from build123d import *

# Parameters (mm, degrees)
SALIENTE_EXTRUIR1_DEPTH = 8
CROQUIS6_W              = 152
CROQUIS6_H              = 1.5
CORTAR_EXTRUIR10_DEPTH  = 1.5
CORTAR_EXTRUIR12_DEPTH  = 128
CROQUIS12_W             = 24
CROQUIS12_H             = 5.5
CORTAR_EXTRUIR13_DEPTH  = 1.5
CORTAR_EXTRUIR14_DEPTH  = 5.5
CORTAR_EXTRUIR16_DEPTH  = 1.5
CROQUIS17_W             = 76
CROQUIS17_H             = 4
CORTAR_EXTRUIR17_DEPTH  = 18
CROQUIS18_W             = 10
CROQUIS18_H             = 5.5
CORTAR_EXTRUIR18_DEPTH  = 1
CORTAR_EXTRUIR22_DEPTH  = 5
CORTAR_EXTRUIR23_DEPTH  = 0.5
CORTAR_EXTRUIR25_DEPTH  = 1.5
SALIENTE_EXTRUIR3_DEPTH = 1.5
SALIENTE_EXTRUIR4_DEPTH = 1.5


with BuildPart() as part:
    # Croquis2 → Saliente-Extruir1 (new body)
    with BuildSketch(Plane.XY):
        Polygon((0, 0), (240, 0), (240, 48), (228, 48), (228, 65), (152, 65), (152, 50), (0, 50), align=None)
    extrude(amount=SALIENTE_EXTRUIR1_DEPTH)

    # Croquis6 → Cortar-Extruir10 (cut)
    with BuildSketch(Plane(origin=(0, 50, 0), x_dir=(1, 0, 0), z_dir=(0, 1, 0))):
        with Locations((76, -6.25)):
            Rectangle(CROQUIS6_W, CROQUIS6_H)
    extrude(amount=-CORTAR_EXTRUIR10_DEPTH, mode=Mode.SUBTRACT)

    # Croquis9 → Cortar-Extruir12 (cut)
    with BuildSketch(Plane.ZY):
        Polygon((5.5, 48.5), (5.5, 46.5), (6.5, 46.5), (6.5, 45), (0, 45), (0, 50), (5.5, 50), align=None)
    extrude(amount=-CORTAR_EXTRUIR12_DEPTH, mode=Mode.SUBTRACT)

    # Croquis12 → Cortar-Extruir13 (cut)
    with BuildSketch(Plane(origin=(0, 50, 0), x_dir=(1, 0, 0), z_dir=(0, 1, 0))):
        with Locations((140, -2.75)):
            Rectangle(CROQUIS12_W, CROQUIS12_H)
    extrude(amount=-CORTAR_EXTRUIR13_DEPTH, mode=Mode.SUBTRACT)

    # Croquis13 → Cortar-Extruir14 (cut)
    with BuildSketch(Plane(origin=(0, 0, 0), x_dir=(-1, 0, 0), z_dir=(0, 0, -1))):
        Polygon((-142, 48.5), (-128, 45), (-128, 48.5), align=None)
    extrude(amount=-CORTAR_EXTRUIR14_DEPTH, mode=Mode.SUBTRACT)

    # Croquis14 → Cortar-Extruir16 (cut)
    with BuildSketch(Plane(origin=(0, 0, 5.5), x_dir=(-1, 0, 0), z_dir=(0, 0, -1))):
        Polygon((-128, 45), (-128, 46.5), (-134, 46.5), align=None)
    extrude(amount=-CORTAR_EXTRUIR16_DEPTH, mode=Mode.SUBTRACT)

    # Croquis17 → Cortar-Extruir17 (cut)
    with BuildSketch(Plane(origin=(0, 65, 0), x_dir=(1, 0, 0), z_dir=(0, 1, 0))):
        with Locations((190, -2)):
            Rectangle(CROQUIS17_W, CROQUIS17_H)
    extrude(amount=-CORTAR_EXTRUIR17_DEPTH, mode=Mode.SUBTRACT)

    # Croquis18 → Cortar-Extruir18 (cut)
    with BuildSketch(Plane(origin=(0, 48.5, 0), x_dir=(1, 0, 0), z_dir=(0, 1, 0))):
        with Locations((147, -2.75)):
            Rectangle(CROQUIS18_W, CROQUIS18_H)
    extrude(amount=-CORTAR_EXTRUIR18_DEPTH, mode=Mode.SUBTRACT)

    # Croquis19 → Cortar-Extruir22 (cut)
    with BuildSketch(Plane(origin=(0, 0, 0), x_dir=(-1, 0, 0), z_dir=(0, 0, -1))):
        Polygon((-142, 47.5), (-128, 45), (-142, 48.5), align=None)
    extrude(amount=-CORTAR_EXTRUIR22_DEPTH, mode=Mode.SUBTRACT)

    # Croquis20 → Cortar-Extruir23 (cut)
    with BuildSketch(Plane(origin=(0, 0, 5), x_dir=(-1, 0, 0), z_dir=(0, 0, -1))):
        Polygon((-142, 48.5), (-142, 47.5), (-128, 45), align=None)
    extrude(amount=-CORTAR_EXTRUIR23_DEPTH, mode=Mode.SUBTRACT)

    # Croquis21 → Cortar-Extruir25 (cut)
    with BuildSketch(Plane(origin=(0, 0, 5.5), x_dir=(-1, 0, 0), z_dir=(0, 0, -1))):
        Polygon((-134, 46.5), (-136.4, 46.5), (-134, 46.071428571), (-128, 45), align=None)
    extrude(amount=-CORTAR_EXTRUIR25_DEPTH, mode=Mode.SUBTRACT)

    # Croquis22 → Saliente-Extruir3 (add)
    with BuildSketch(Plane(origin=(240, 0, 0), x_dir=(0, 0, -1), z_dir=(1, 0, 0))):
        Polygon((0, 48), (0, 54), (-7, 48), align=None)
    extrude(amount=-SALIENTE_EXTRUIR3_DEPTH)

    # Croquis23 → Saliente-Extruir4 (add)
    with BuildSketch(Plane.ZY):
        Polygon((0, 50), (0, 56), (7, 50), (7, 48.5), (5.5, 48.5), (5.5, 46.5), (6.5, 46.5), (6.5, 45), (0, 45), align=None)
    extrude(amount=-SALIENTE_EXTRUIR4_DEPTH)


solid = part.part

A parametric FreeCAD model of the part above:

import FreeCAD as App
import Part
import Sketcher

doc = App.newDocument("Part")
body = doc.addObject("PartDesign::Body", "Body")

# Sketch on XY plane
sketch1 = body.newObject("Sketcher::SketchObject", "Sketch")
sketch1.AttachmentSupport = (doc.getObject("XY_Plane"), [""])
sketch1.MapMode = "FlatFace"
sketch1.addGeometry([
    Part.LineSegment(App.Vector(0, 0, 0), App.Vector(240, 0, 0)),  # 0
    Part.LineSegment(App.Vector(240, 0, 0), App.Vector(240, 48, 0)),  # 1
    Part.LineSegment(App.Vector(240, 48, 0), App.Vector(228, 48, 0)),  # 2
    Part.LineSegment(App.Vector(228, 48, 0), App.Vector(228, 65, 0)),  # 3
    Part.LineSegment(App.Vector(228, 65, 0), App.Vector(152, 65, 0)),  # 4
    Part.LineSegment(App.Vector(152, 65, 0), App.Vector(152, 50, 0)),  # 5
    Part.LineSegment(App.Vector(152, 50, 0), App.Vector(0, 50, 0)),  # 6
    Part.LineSegment(App.Vector(0, 50, 0), App.Vector(0, 0, 0)),  # 7
], False)
sketch1.addConstraint([
    Sketcher.Constraint("Coincident", 0, 2, 1, 1),
    Sketcher.Constraint("Coincident", 1, 2, 2, 1),
    Sketcher.Constraint("Coincident", 2, 2, 3, 1),
    Sketcher.Constraint("Coincident", 3, 2, 4, 1),
    Sketcher.Constraint("Coincident", 4, 2, 5, 1),
    Sketcher.Constraint("Coincident", 5, 2, 6, 1),
    Sketcher.Constraint("Coincident", 6, 2, 7, 1),
    Sketcher.Constraint("Coincident", 7, 2, 0, 1),
    Sketcher.Constraint("Horizontal", 0),
    Sketcher.Constraint("Vertical", 1),
    Sketcher.Constraint("Horizontal", 2),
    Sketcher.Constraint("Vertical", 3),
    Sketcher.Constraint("Horizontal", 4),
    Sketcher.Constraint("Vertical", 5),
    Sketcher.Constraint("Horizontal", 6),
    Sketcher.Constraint("Vertical", 7),
    Sketcher.Constraint("Coincident", 7, 2, -1, 1),
    Sketcher.Constraint("DistanceX", 0, 1, 0, 2, 240.0),
    Sketcher.Constraint("DistanceX", 2, 2, 2, 1, 12.0),
    Sketcher.Constraint("DistanceX", 4, 2, 4, 1, 76.0),
    Sketcher.Constraint("DistanceY", 1, 1, 1, 2, 48.0),
    Sketcher.Constraint("DistanceY", 3, 1, 3, 2, 17.0),
    Sketcher.Constraint("DistanceY", 5, 2, 5, 1, 15.0),
])
pad1 = body.newObject("PartDesign::Pad", "Pad")
pad1.Profile = sketch1
pad1.Length = 8

# Sketch on XZ plane
sketch2 = body.newObject("Sketcher::SketchObject", "Sketch001")
sketch2.AttachmentSupport = (doc.getObject("XZ_Plane"), [""])
sketch2.MapMode = "FlatFace"
sketch2.AttachmentOffset = App.Placement(App.Vector(0, 0, -50), App.Rotation())
sketch2.addGeometry([
    Part.LineSegment(App.Vector(0, 5.5, 0), App.Vector(0, 7, 0)),
    Part.LineSegment(App.Vector(0, 7, 0), App.Vector(152, 7, 0)),
    Part.LineSegment(App.Vector(152, 7, 0), App.Vector(152, 5.5, 0)),
    Part.LineSegment(App.Vector(152, 5.5, 0), App.Vector(0, 5.5, 0)),
], False)
sketch2.addConstraint([
    Sketcher.Constraint("Coincident", 0, 2, 1, 1),
    Sketcher.Constraint("Coincident", 1, 2, 2, 1),
    Sketcher.Constraint("Coincident", 2, 2, 3, 1),
    Sketcher.Constraint("Coincident", 3, 2, 0, 1),
    Sketcher.Constraint("Vertical", 0),
    Sketcher.Constraint("Horizontal", 1),
    Sketcher.Constraint("Vertical", 2),
    Sketcher.Constraint("Horizontal", 3),
    Sketcher.Constraint("PointOnObject", 0, 2, -2),
    Sketcher.Constraint("DistanceX", 1, 1, 1, 2, 152.0),
    Sketcher.Constraint("DistanceY", 0, 1, 0, 2, 1.5),
    Sketcher.Constraint("DistanceY", -1, 1, 0, 2, 7.0),
])
pocket1 = body.newObject("PartDesign::Pocket", "Pocket")
pocket1.Profile = sketch2
pocket1.Length = 1.5
pocket1.Reversed = True

# Sketch on YZ plane
sketch3 = body.newObject("Sketcher::SketchObject", "Sketch002")
sketch3.AttachmentSupport = (doc.getObject("YZ_Plane"), [""])
sketch3.MapMode = "FlatFace"
sketch3.addGeometry([
    Part.LineSegment(App.Vector(46.5, 5.5, 0), App.Vector(50, 5.5, 0)),  # 0
    Part.LineSegment(App.Vector(50, 5.5, 0), App.Vector(50, 0, 0)),  # 1
    Part.LineSegment(App.Vector(50, 0, 0), App.Vector(45, 0, 0)),  # 2
    Part.LineSegment(App.Vector(45, 0, 0), App.Vector(45, 6.5, 0)),  # 3
    Part.LineSegment(App.Vector(45, 6.5, 0), App.Vector(46.5, 6.5, 0)),  # 4
    Part.LineSegment(App.Vector(46.5, 6.5, 0), App.Vector(46.5, 5.5, 0)),  # 5
], False)
sketch3.addConstraint([
    Sketcher.Constraint("Coincident", 0, 2, 1, 1),
    Sketcher.Constraint("Coincident", 1, 2, 2, 1),
    Sketcher.Constraint("Coincident", 2, 2, 3, 1),
    Sketcher.Constraint("Coincident", 3, 2, 4, 1),
    Sketcher.Constraint("Coincident", 4, 2, 5, 1),
    Sketcher.Constraint("Coincident", 5, 2, 0, 1),
    Sketcher.Constraint("Horizontal", 0),
    Sketcher.Constraint("Vertical", 1),
    Sketcher.Constraint("Horizontal", 2),
    Sketcher.Constraint("Vertical", 3),
    Sketcher.Constraint("Horizontal", 4),
    Sketcher.Constraint("Vertical", 5),
    Sketcher.Constraint("PointOnObject", 1, 2, -1),
    Sketcher.Constraint("DistanceX", 2, 2, 2, 1, 5.0),
    Sketcher.Constraint("DistanceY", 5, 2, 5, 1, 1.0),
    Sketcher.Constraint("DistanceX", 0, 1, 0, 2, 3.5),
    Sketcher.Constraint("DistanceY", 1, 2, 1, 1, 5.5),
    Sketcher.Constraint("DistanceX", -1, 1, 0, 2, 50.0),
])
pocket2 = body.newObject("PartDesign::Pocket", "Pocket001")
pocket2.Profile = sketch3
pocket2.Length = 128
pocket2.Reversed = True

# Sketch on XZ plane
sketch4 = body.newObject("Sketcher::SketchObject", "Sketch003")
sketch4.AttachmentSupport = (doc.getObject("XZ_Plane"), [""])
sketch4.MapMode = "FlatFace"
sketch4.AttachmentOffset = App.Placement(App.Vector(0, 0, -50), App.Rotation())
sketch4.addGeometry([
    Part.LineSegment(App.Vector(128, 0, 0), App.Vector(128, 6, 0)),
    Part.LineSegment(App.Vector(128, 6, 0), App.Vector(152, 6, 0)),
    Part.LineSegment(App.Vector(152, 6, 0), App.Vector(152, 0, 0)),
    Part.LineSegment(App.Vector(152, 0, 0), App.Vector(128, 0, 0)),
], False)
sketch4.addConstraint([
    Sketcher.Constraint("Coincident", 0, 2, 1, 1),
    Sketcher.Constraint("Coincident", 1, 2, 2, 1),
    Sketcher.Constraint("Coincident", 2, 2, 3, 1),
    Sketcher.Constraint("Coincident", 3, 2, 0, 1),
    Sketcher.Constraint("Vertical", 0),
    Sketcher.Constraint("Horizontal", 1),
    Sketcher.Constraint("Vertical", 2),
    Sketcher.Constraint("Horizontal", 3),
    Sketcher.Constraint("PointOnObject", 2, 2, -1),
    Sketcher.Constraint("DistanceX", 1, 1, 1, 2, 24.0),
    Sketcher.Constraint("DistanceY", 0, 1, 0, 2, 5.5),
    Sketcher.Constraint("DistanceX", -1, 1, 0, 2, 128.0),
])
pocket3 = body.newObject("PartDesign::Pocket", "Pocket002")
pocket3.Profile = sketch4
pocket3.Length = 1.5
pocket3.Reversed = True

# Sketch on XY plane
sketch5 = body.newObject("Sketcher::SketchObject", "Sketch004")
sketch5.AttachmentSupport = (doc.getObject("XY_Plane"), [""])
sketch5.MapMode = "FlatFace"
sketch5.addGeometry([
    Part.LineSegment(App.Vector(142, 48.5, 0), App.Vector(128, 45, 0)),
    Part.LineSegment(App.Vector(128, 45, 0), App.Vector(128, 48.5, 0)),
    Part.LineSegment(App.Vector(128, 48.5, 0), App.Vector(142, 48.5, 0)),
], False)
sketch5.addConstraint([
    Sketcher.Constraint("Coincident", 0, 2, 1, 1),
    Sketcher.Constraint("Coincident", 1, 2, 2, 1),
    Sketcher.Constraint("Coincident", 2, 2, 0, 1),
    Sketcher.Constraint("Vertical", 1),
    Sketcher.Constraint("Horizontal", 2),
    Sketcher.Constraint("DistanceX", 2, 1, 2, 2, 14.0),
    Sketcher.Constraint("DistanceY", 1, 1, 1, 2, 3.5),
    Sketcher.Constraint("DistanceX", -1, 1, 0, 2, 128.0),
    Sketcher.Constraint("DistanceY", -1, 1, 0, 2, 45.0),
])
pocket4 = body.newObject("PartDesign::Pocket", "Pocket003")
pocket4.Profile = sketch5
pocket4.Length = 5.5
pocket4.Reversed = True

# Sketch on XY plane
sketch6 = body.newObject("Sketcher::SketchObject", "Sketch005")
sketch6.AttachmentSupport = (doc.getObject("XY_Plane"), [""])
sketch6.MapMode = "FlatFace"
sketch6.AttachmentOffset = App.Placement(App.Vector(0, 0, 5.5), App.Rotation())
sketch6.addGeometry([
    Part.LineSegment(App.Vector(128, 45, 0), App.Vector(128, 46.5, 0)),
    Part.LineSegment(App.Vector(128, 46.5, 0), App.Vector(134, 46.5, 0)),
    Part.LineSegment(App.Vector(134, 46.5, 0), App.Vector(128, 45, 0)),
], False)
sketch6.addConstraint([
    Sketcher.Constraint("Coincident", 0, 2, 1, 1),
    Sketcher.Constraint("Coincident", 1, 2, 2, 1),
    Sketcher.Constraint("Coincident", 2, 2, 0, 1),
    Sketcher.Constraint("Vertical", 0),
    Sketcher.Constraint("Horizontal", 1),
    Sketcher.Constraint("DistanceX", 1, 1, 1, 2, 6.0),
    Sketcher.Constraint("DistanceY", 0, 1, 0, 2, 1.5),
    Sketcher.Constraint("DistanceX", -1, 1, 0, 2, 128.0),
    Sketcher.Constraint("DistanceY", -1, 1, 2, 2, 45.0),
])
pocket5 = body.newObject("PartDesign::Pocket", "Pocket004")
pocket5.Profile = sketch6
pocket5.Length = 1.5
pocket5.Reversed = True

# Sketch on XZ plane
sketch7 = body.newObject("Sketcher::SketchObject", "Sketch006")
sketch7.AttachmentSupport = (doc.getObject("XZ_Plane"), [""])
sketch7.MapMode = "FlatFace"
sketch7.AttachmentOffset = App.Placement(App.Vector(0, 0, -65), App.Rotation())
sketch7.addGeometry([
    Part.LineSegment(App.Vector(152, 0, 0), App.Vector(152, 4, 0)),
    Part.LineSegment(App.Vector(152, 4, 0), App.Vector(228, 4, 0)),
    Part.LineSegment(App.Vector(228, 4, 0), App.Vector(228, 0, 0)),
    Part.LineSegment(App.Vector(228, 0, 0), App.Vector(152, 0, 0)),
], False)
sketch7.addConstraint([
    Sketcher.Constraint("Coincident", 0, 2, 1, 1),
    Sketcher.Constraint("Coincident", 1, 2, 2, 1),
    Sketcher.Constraint("Coincident", 2, 2, 3, 1),
    Sketcher.Constraint("Coincident", 3, 2, 0, 1),
    Sketcher.Constraint("Vertical", 0),
    Sketcher.Constraint("Horizontal", 1),
    Sketcher.Constraint("Vertical", 2),
    Sketcher.Constraint("Horizontal", 3),
    Sketcher.Constraint("PointOnObject", 2, 2, -1),
    Sketcher.Constraint("DistanceX", 1, 1, 1, 2, 76.0),
    Sketcher.Constraint("DistanceY", 0, 1, 0, 2, 4.0),
    Sketcher.Constraint("DistanceX", -1, 1, 0, 2, 152.0),
])
pocket6 = body.newObject("PartDesign::Pocket", "Pocket005")
pocket6.Profile = sketch7
pocket6.Length = 18
pocket6.Reversed = True

# Sketch on XZ plane
sketch8 = body.newObject("Sketcher::SketchObject", "Sketch007")
sketch8.AttachmentSupport = (doc.getObject("XZ_Plane"), [""])
sketch8.MapMode = "FlatFace"
sketch8.AttachmentOffset = App.Placement(App.Vector(0, 0, -48.5), App.Rotation())
sketch8.addGeometry([
    Part.LineSegment(App.Vector(142, 0, 0), App.Vector(142, 6, 0)),
    Part.LineSegment(App.Vector(142, 6, 0), App.Vector(152, 6, 0)),
    Part.LineSegment(App.Vector(152, 6, 0), App.Vector(152, 0, 0)),
    Part.LineSegment(App.Vector(152, 0, 0), App.Vector(142, 0, 0)),
], False)
sketch8.addConstraint([
    Sketcher.Constraint("Coincident", 0, 2, 1, 1),
    Sketcher.Constraint("Coincident", 1, 2, 2, 1),
    Sketcher.Constraint("Coincident", 2, 2, 3, 1),
    Sketcher.Constraint("Coincident", 3, 2, 0, 1),
    Sketcher.Constraint("Vertical", 0),
    Sketcher.Constraint("Horizontal", 1),
    Sketcher.Constraint("Vertical", 2),
    Sketcher.Constraint("Horizontal", 3),
    Sketcher.Constraint("PointOnObject", 2, 2, -1),
    Sketcher.Constraint("DistanceX", 1, 1, 1, 2, 10.0),
    Sketcher.Constraint("DistanceY", 0, 1, 0, 2, 5.5),
    Sketcher.Constraint("DistanceX", -1, 1, 0, 2, 142.0),
])
pocket7 = body.newObject("PartDesign::Pocket", "Pocket006")
pocket7.Profile = sketch8
pocket7.Length = 1
pocket7.Reversed = True

# Sketch on XY plane
sketch9 = body.newObject("Sketcher::SketchObject", "Sketch008")
sketch9.AttachmentSupport = (doc.getObject("XY_Plane"), [""])
sketch9.MapMode = "FlatFace"
sketch9.addGeometry([
    Part.LineSegment(App.Vector(142, 47.5, 0), App.Vector(128, 45, 0)),
    Part.LineSegment(App.Vector(128, 45, 0), App.Vector(142, 48.5, 0)),
    Part.LineSegment(App.Vector(142, 48.5, 0), App.Vector(142, 47.5, 0)),
], False)
sketch9.addConstraint([
    Sketcher.Constraint("Coincident", 0, 2, 1, 1),
    Sketcher.Constraint("Coincident", 1, 2, 2, 1),
    Sketcher.Constraint("Coincident", 2, 2, 0, 1),
    Sketcher.Constraint("Vertical", 2),
    Sketcher.Constraint("DistanceY", 2, 2, 2, 1, 1.0),
    Sketcher.Constraint("DistanceX", -1, 1, 0, 2, 128.0),
    Sketcher.Constraint("DistanceY", -1, 1, 0, 2, 45.0),
    Sketcher.Constraint("DistanceX", -1, 1, 1, 2, 142.0),
    Sketcher.Constraint("DistanceY", -1, 1, 1, 2, 48.5),
])
pocket8 = body.newObject("PartDesign::Pocket", "Pocket007")
pocket8.Profile = sketch9
pocket8.Length = 5
pocket8.Reversed = True

# Sketch on XY plane
sketch10 = body.newObject("Sketcher::SketchObject", "Sketch009")
sketch10.AttachmentSupport = (doc.getObject("XY_Plane"), [""])
sketch10.MapMode = "FlatFace"
sketch10.AttachmentOffset = App.Placement(App.Vector(0, 0, 5), App.Rotation())
sketch10.addGeometry([
    Part.LineSegment(App.Vector(142, 48.5, 0), App.Vector(142, 47.5, 0)),
    Part.LineSegment(App.Vector(142, 47.5, 0), App.Vector(128, 45, 0)),
    Part.LineSegment(App.Vector(128, 45, 0), App.Vector(142, 48.5, 0)),
], False)
sketch10.addConstraint([
    Sketcher.Constraint("Coincident", 0, 2, 1, 1),
    Sketcher.Constraint("Coincident", 1, 2, 2, 1),
    Sketcher.Constraint("Coincident", 2, 2, 0, 1),
    Sketcher.Constraint("Vertical", 0),
    Sketcher.Constraint("DistanceY", 0, 2, 0, 1, 1.0),
    Sketcher.Constraint("DistanceX", -1, 1, 0, 2, 142.0),
    Sketcher.Constraint("DistanceX", -1, 1, 1, 2, 128.0),
    Sketcher.Constraint("DistanceY", -1, 1, 1, 2, 45.0),
    Sketcher.Constraint("DistanceY", -1, 1, 0, 2, 47.5),
])
pocket9 = body.newObject("PartDesign::Pocket", "Pocket008")
pocket9.Profile = sketch10
pocket9.Length = 0.5
pocket9.Reversed = True

# Sketch on XY plane
sketch11 = body.newObject("Sketcher::SketchObject", "Sketch010")
sketch11.AttachmentSupport = (doc.getObject("XY_Plane"), [""])
sketch11.MapMode = "FlatFace"
sketch11.AttachmentOffset = App.Placement(App.Vector(0, 0, 5.5), App.Rotation())
sketch11.addGeometry([
    Part.LineSegment(App.Vector(134, 46.5, 0), App.Vector(136.4, 46.5, 0)),
    Part.LineSegment(App.Vector(136.4, 46.5, 0), App.Vector(134, 46.1, 0)),
    Part.LineSegment(App.Vector(134, 46.1, 0), App.Vector(128, 45, 0)),
    Part.LineSegment(App.Vector(128, 45, 0), App.Vector(134, 46.5, 0)),
], False)
sketch11.addConstraint([
    Sketcher.Constraint("Coincident", 0, 2, 1, 1),
    Sketcher.Constraint("Coincident", 1, 2, 2, 1),
    Sketcher.Constraint("Coincident", 2, 2, 3, 1),
    Sketcher.Constraint("Coincident", 3, 2, 0, 1),
    Sketcher.Constraint("Horizontal", 0),
    Sketcher.Constraint("Parallel", 1, 2),
    Sketcher.Constraint("Vertical", 1, 2, 3, 2),
    Sketcher.Constraint("DistanceX", 0, 1, 0, 2, 2.4),
    Sketcher.Constraint("DistanceX", -1, 1, 1, 2, 134.0),
    Sketcher.Constraint("DistanceX", -1, 1, 2, 2, 128.0),
    Sketcher.Constraint("DistanceY", -1, 1, 2, 2, 45.0),
    Sketcher.Constraint("DistanceY", -1, 1, 0, 2, 46.5),
])
pocket10 = body.newObject("PartDesign::Pocket", "Pocket009")
pocket10.Profile = sketch11
pocket10.Length = 1.5
pocket10.Reversed = True

# Sketch on YZ plane
sketch12 = body.newObject("Sketcher::SketchObject", "Sketch011")
sketch12.AttachmentSupport = (doc.getObject("YZ_Plane"), [""])
sketch12.MapMode = "FlatFace"
sketch12.AttachmentOffset = App.Placement(App.Vector(0, 0, 240), App.Rotation())
sketch12.addGeometry([
    Part.LineSegment(App.Vector(48, 0, 0), App.Vector(54, 0, 0)),
    Part.LineSegment(App.Vector(54, 0, 0), App.Vector(48, 7, 0)),
    Part.LineSegment(App.Vector(48, 7, 0), App.Vector(48, 0, 0)),
], False)
sketch12.addConstraint([
    Sketcher.Constraint("Coincident", 0, 2, 1, 1),
    Sketcher.Constraint("Coincident", 1, 2, 2, 1),
    Sketcher.Constraint("Coincident", 2, 2, 0, 1),
    Sketcher.Constraint("Horizontal", 0),
    Sketcher.Constraint("Vertical", 2),
    Sketcher.Constraint("PointOnObject", 0, 2, -1),
    Sketcher.Constraint("DistanceX", 0, 1, 0, 2, 6.0),
    Sketcher.Constraint("DistanceY", 2, 2, 2, 1, 7.0),
    Sketcher.Constraint("DistanceX", -1, 1, 0, 2, 54.0),
])
pad2 = body.newObject("PartDesign::Pad", "Pad001")
pad2.Profile = sketch12
pad2.Length = 1.5
pad2.Reversed = True

# Sketch on YZ plane
sketch13 = body.newObject("Sketcher::SketchObject", "Sketch012")
sketch13.AttachmentSupport = (doc.getObject("YZ_Plane"), [""])
sketch13.MapMode = "FlatFace"
sketch13.addGeometry([
    Part.LineSegment(App.Vector(56, 0, 0), App.Vector(45, 0, 0)),  # 0
    Part.LineSegment(App.Vector(45, 0, 0), App.Vector(45, 6.5, 0)),  # 1
    Part.LineSegment(App.Vector(45, 6.5, 0), App.Vector(46.5, 6.5, 0)),  # 2
    Part.LineSegment(App.Vector(46.5, 6.5, 0), App.Vector(46.5, 5.5, 0)),  # 3
    Part.LineSegment(App.Vector(46.5, 5.5, 0), App.Vector(48.5, 5.5, 0)),  # 4
    Part.LineSegment(App.Vector(48.5, 5.5, 0), App.Vector(48.5, 7, 0)),  # 5
    Part.LineSegment(App.Vector(48.5, 7, 0), App.Vector(50, 7, 0)),  # 6
    Part.LineSegment(App.Vector(50, 7, 0), App.Vector(56, 0, 0)),  # 7
], False)
sketch13.addConstraint([
    Sketcher.Constraint("Coincident", 0, 2, 1, 1),
    Sketcher.Constraint("Coincident", 1, 2, 2, 1),
    Sketcher.Constraint("Coincident", 2, 2, 3, 1),
    Sketcher.Constraint("Coincident", 3, 2, 4, 1),
    Sketcher.Constraint("Coincident", 4, 2, 5, 1),
    Sketcher.Constraint("Coincident", 5, 2, 6, 1),
    Sketcher.Constraint("Coincident", 6, 2, 7, 1),
    Sketcher.Constraint("Coincident", 7, 2, 0, 1),
    Sketcher.Constraint("Horizontal", 0),
    Sketcher.Constraint("Vertical", 1),
    Sketcher.Constraint("Horizontal", 2),
    Sketcher.Constraint("Vertical", 3),
    Sketcher.Constraint("Horizontal", 4),
    Sketcher.Constraint("Vertical", 5),
    Sketcher.Constraint("Horizontal", 6),
    Sketcher.Constraint("PointOnObject", 0, 2, -1),
    Sketcher.Constraint("Equal", 2, 6),
    Sketcher.Constraint("Equal", 6, 5),
    Sketcher.Constraint("DistanceX", 0, 2, 0, 1, 11.0),
    Sketcher.Constraint("DistanceX", 4, 1, 4, 2, 2.0),
    Sketcher.Constraint("DistanceY", 3, 2, 3, 1, 1.0),
    Sketcher.Constraint("DistanceX", 2, 1, 2, 2, 1.5),
    Sketcher.Constraint("DistanceY", 1, 1, 1, 2, 6.5),
    Sketcher.Constraint("DistanceX", -1, 1, 0, 2, 45.0),
])
pad3 = body.newObject("PartDesign::Pad", "Pad002")
pad3.Profile = sketch13
pad3.Length = 1.5

doc.recompute()
